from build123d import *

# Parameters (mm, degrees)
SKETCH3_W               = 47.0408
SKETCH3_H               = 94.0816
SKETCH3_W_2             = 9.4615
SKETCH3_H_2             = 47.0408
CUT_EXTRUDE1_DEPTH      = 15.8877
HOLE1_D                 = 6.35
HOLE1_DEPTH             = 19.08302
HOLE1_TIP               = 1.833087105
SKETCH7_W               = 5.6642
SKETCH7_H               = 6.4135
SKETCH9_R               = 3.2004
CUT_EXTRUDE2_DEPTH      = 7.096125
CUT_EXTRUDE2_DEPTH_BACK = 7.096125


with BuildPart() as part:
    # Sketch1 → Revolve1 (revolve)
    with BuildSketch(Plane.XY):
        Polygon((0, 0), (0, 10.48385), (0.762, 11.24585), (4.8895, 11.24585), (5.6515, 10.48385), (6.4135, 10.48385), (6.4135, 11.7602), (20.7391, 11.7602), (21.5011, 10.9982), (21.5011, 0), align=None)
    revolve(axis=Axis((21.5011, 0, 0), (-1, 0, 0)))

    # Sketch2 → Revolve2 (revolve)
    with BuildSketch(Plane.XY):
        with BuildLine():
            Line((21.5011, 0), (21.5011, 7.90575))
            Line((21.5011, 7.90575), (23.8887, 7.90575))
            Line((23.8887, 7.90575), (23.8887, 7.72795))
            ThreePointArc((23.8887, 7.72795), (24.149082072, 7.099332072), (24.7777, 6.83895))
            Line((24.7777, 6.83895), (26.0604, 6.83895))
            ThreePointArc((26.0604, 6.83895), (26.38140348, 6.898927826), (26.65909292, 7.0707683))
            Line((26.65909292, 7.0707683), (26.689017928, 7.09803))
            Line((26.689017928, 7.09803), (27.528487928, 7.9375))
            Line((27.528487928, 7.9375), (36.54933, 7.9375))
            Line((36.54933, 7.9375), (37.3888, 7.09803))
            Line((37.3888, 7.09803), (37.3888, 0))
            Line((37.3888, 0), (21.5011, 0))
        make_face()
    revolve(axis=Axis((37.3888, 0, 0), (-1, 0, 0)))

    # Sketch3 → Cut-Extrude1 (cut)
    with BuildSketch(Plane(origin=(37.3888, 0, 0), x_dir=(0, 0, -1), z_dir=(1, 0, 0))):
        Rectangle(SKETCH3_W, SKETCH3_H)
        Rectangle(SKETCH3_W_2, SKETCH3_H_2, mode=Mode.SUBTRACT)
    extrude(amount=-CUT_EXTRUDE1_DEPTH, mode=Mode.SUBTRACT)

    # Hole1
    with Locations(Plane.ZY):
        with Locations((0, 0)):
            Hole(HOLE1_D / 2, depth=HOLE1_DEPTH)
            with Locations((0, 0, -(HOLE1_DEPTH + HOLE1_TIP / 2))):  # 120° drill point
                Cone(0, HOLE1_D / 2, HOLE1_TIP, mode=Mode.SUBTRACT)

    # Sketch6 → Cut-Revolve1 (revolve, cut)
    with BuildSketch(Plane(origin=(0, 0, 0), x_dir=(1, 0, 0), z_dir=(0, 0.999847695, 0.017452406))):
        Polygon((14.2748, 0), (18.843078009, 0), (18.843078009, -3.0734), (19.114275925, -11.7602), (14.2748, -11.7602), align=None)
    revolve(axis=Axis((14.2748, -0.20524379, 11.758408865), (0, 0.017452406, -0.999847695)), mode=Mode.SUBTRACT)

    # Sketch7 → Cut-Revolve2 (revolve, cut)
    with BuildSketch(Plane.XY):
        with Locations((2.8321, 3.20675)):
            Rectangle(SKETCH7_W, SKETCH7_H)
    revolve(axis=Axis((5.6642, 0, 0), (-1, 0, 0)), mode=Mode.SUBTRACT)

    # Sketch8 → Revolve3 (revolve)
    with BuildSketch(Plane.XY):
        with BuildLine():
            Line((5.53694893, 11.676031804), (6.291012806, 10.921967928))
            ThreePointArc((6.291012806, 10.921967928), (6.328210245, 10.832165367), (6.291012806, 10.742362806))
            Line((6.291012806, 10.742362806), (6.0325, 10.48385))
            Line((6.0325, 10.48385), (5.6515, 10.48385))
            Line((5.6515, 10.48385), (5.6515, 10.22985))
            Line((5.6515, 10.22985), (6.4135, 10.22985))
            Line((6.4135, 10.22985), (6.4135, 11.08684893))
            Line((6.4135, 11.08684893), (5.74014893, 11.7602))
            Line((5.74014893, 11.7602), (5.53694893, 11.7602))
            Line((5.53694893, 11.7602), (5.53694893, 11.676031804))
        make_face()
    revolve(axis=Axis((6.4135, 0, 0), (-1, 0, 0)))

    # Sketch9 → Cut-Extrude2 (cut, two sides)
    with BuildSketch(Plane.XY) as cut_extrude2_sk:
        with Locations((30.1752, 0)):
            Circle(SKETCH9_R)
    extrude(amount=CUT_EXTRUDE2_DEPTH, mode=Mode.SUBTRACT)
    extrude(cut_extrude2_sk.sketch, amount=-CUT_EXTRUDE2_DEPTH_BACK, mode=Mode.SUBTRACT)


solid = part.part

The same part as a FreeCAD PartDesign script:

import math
import FreeCAD as App
import Part
import Sketcher

V = App.Vector
Q = App.Units.Quantity


def add_polygon(sketch, points):
    """Adds a closed chain of lines whose ends are joined by coincident constraints."""
    first, n = sketch.GeometryCount, len(points)
    for a, b in zip(points, points[1:] + points[:1]):
        sketch.addGeometry(Part.LineSegment(App.Vector(*a, 0), App.Vector(*b, 0)), False)
    for i in range(n):
        sketch.addConstraint(Sketcher.Constraint("Coincident", first + i, 2, first + (i + 1) % n, 1))

doc = App.newDocument("Part")
body = doc.addObject("PartDesign::Body", "Body")

sketch1 = doc.addObject("Sketcher::SketchObject", "Sketch")
body.addObject(sketch1)
sketch1.AttachmentSupport = (doc.XY_Plane, [""])
sketch1.MapMode = "FlatFace"
add_polygon(sketch1, [(0, 10.5), (0, 0), (21.5, 0), (21.5, 11), (20.7, 11.8), (6.4, 11.8), (6.4, 10.5), (5.7, 10.5), (4.9, 11.2), (0.8, 11.2)])
sketch1.addConstraint(Sketcher.Constraint("Vertical", 0))
sketch1.addConstraint(Sketcher.Constraint("Horizontal", 1))
sketch1.addConstraint(Sketcher.Constraint("Vertical", 2))
sketch1.addConstraint(Sketcher.Constraint("Horizontal", 4))
sketch1.addConstraint(Sketcher.Constraint("Vertical", 5))
sketch1.addConstraint(Sketcher.Constraint("Horizontal", 6))
sketch1.addConstraint(Sketcher.Constraint("Horizontal", 8))
sketch1.addConstraint(Sketcher.Constraint("Coincident", 0, 2, -1, 1))
sketch1.addConstraint(Sketcher.Constraint("Parallel", 3, 7))
sketch1.addConstraint(Sketcher.Constraint("Perpendicular", 7, 9))
sketch1.addConstraint(Sketcher.Constraint("Horizontal", 6, 2, 9, 2))
sketch1.addConstraint(Sketcher.Constraint("Equal", 3, 7))
sketch1.addConstraint(Sketcher.Constraint("Equal", 7, 9))
sketch1.addConstraint(Sketcher.Constraint("DistanceX", 6, 2, 6, 1, Q("0.03 in")))
sketch1.addConstraint(Sketcher.Constraint("DistanceX", 4, 2, 4, 1, Q("0.564 in")))
sketch1.addConstraint(Sketcher.Constraint("DistanceY", 2, 1, 2, 2, Q("0.433 in")))
sketch1.addConstraint(Sketcher.Constraint("DistanceX", -1, 1, 8, 2, Q("0.03 in")))
sketch1.addConstraint(Sketcher.Constraint("DistanceX", 1, 1, 1, 2, Q("0.8465 in")))
sketch1.addConstraint(Sketcher.Constraint("DistanceY", 0, 2, 0, 1, 10.48385))
revolution = doc.addObject("PartDesign::Revolution", "Revolution")
body.addObject(revolution)
revolution.Profile = sketch1
revolution.ReferenceAxis = (sketch1, ["H_Axis"])
revolution.Angle = 360

sketch2 = doc.addObject("Sketcher::SketchObject", "Sketch001")
body.addObject(sketch2)
sketch2.AttachmentSupport = (doc.XY_Plane, [""])
sketch2.MapMode = "FlatFace"
sketch2.addGeometry(Part.LineSegment(V(21.501, 7.906, 0), V(21.501, 0, 0)), False)
sketch2.addGeometry(Part.LineSegment(V(21.501, 0, 0), V(37.389, 0, 0)), False)
sketch2.addGeometry(Part.LineSegment(V(37.389, 0, 0), V(37.389, 7.098, 0)), False)
sketch2.addGeometry(Part.LineSegment(V(37.389, 7.098, 0), V(36.549, 7.938, 0)), False)
sketch2.addGeometry(Part.LineSegment(V(36.549, 7.938, 0), V(27.528, 7.938, 0)), False)
sketch2.addGeometry(Part.LineSegment(V(27.528, 7.938, 0), V(26.689, 7.098, 0)), False)
sketch2.addGeometry(Part.LineSegment(V(26.689, 7.098, 0), V(26.659, 7.071, 0)), False)
sketch2.addGeometry(Part.ArcOfCircle(Part.Circle(V(26.06, 7.728, 0), V(0, 0, 1), 0.889), math.radians(-90), math.radians(-48)), False)
sketch2.addGeometry(Part.LineSegment(V(26.06, 6.839, 0), V(24.778, 6.839, 0)), False)
sketch2.addGeometry(Part.ArcOfCircle(Part.Circle(V(24.778, 7.728, 0), V(0, 0, 1), 0.889), math.radians(-180), math.radians(-90)), False)
sketch2.addGeometry(Part.LineSegment(V(23.889, 7.728, 0), V(23.889, 7.906, 0)), False)
sketch2.addGeometry(Part.LineSegment(V(23.889, 7.906, 0), V(21.501, 7.906, 0)), False)
sketch2.addConstraint(Sketcher.Constraint("Coincident", 0, 2, 1, 1))
sketch2.addConstraint(Sketcher.Constraint("Coincident", 1, 2, 2, 1))
sketch2.addConstraint(Sketcher.Constraint("Coincident", 2, 2, 3, 1))
sketch2.addConstraint(Sketcher.Constraint("Coincident", 3, 2, 4, 1))
sketch2.addConstraint(Sketcher.Constraint("Coincident", 4, 2, 5, 1))
sketch2.addConstraint(Sketcher.Constraint("Coincident", 5, 2, 6, 1))
sketch2.addConstraint(Sketcher.Constraint("Tangent", 6, 2, 7, 2))
sketch2.addConstraint(Sketcher.Constraint("Tangent", 7, 1, 8, 1))
sketch2.addConstraint(Sketcher.Constraint("Tangent", 8, 2, 9, 2))
sketch2.addConstraint(Sketcher.Constraint("Tangent", 9, 1, 10, 1))
sketch2.addConstraint(Sketcher.Constraint("Coincident", 10, 2, 11, 1))
sketch2.addConstraint(Sketcher.Constraint("Coincident", 11, 2, 0, 1))
sketch2.addConstraint(Sketcher.Constraint("Vertical", 0))
sketch2.addConstraint(Sketcher.Constraint("Horizontal", 1))
sketch2.addConstraint(Sketcher.Constraint("Vertical", 2))
sketch2.addConstraint(Sketcher.Constraint("Horizontal", 4))
sketch2.addConstraint(Sketcher.Constraint("Horizontal", 8))
sketch2.addConstraint(Sketcher.Constraint("Vertical", 10))
sketch2.addConstraint(Sketcher.Constraint("Horizontal", 11))
sketch2.addConstraint(Sketcher.Constraint("Equal", 7, 9))
sketch2.addConstraint(Sketcher.Constraint("PointOnObject", 0, 2, -1))
sketch2.addConstraint(Sketcher.Constraint("Perpendicular", 3, 5))
sketch2.addConstraint(Sketcher.Constraint("Horizontal", 2, 2, 5, 2))
sketch2.addConstraint(Sketcher.Constraint("Equal", 3, 5))
sketch2.addConstraint(Sketcher.Constraint("Radius", 7, Q("0.035 in")))
sketch2.addConstraint(Sketcher.Constraint("DistanceX", 11, 2, 11, 1, Q("0.094 in")))
sketch2.addConstraint(Sketcher.Constraint("DistanceY", 10, 1, 10, 2, Q("0.007 in")))
sketch2.addConstraint(Sketcher.Constraint("DistanceX", 1, 1, 1, 2, Q("0.6255 in")))
sketch2.addConstraint(Sketcher.Constraint("DistanceX", 8, 2, 8, 1, Q("0.0505 in")))
sketch2.addConstraint(Sketcher.Constraint("DistanceX", -1, 1, 7, 3, Q("1.026 in")))
sketch2.addConstraint(Sketcher.Constraint("DistanceY", -1, 1, 3, 2, Q("0.3125 in")))
sketch2.addConstraint(Sketcher.Constraint("DistanceY", 2, 2, 7, 3, Q("0.0248 in")))
sketch2.addConstraint(Sketcher.Constraint("DistanceY", 0, 2, 0, 1, 7.90575))
sketch2.addConstraint(Sketcher.Constraint("Distance", 6, 0.040481))
revolution2 = doc.addObject("PartDesign::Revolution", "Revolution001")
body.addObject(revolution2)
revolution2.Profile = sketch2
revolution2.ReferenceAxis = (sketch2, ["H_Axis"])
revolution2.Angle = 360

sketch3 = doc.addObject("Sketcher::SketchObject", "Sketch002")
body.addObject(sketch3)
sketch3.AttachmentSupport = (doc.YZ_Plane, [""])
sketch3.MapMode = "FlatFace"
sketch3.AttachmentOffset = App.Placement(V(0, 0, 1.472 * 25.4), App.Rotation())
add_polygon(sketch3, [(47, 24), (-47, 24), (-47, -24), (47, -24)])
add_polygon(sketch3, [(-24, -5), (-24, 5), (24, 5), (24, -5)])
sketch3.addConstraint(Sketcher.Constraint("Horizontal", 0))
sketch3.addConstraint(Sketcher.Constraint("Vertical", 1))
sketch3.addConstraint(Sketcher.Constraint("Horizontal", 2))
sketch3.addConstraint(Sketcher.Constraint("Vertical", 3))
sketch3.addConstraint(Sketcher.Constraint("Vertical", 4))
sketch3.addConstraint(Sketcher.Constraint("Horizontal", 5))
sketch3.addConstraint(Sketcher.Constraint("Vertical", 6))
sketch3.addConstraint(Sketcher.Constraint("Horizontal", 7))
sketch3.addConstraint(Sketcher.Constraint("Symmetric", 0, 2, 2, 2, -1, 1))
sketch3.addConstraint(Sketcher.Constraint("Symmetric", 4, 2, 6, 2, -1, 1))
sketch3.addConstraint(Sketcher.Constraint("Equal", 7, 1))
sketch3.addConstraint(Sketcher.Constraint("DistanceX", 0, 2, 0, 1, Q("3.704 in")))
sketch3.addConstraint(Sketcher.Constraint("DistanceX", 5, 1, 5, 2, Q("1.852 in")))
sketch3.addConstraint(Sketcher.Constraint("DistanceY", 4, 1, 4, 2, Q("0.3725 in")))
pocket1 = doc.addObject("PartDesign::Pocket", "Pocket")
body.addObject(pocket1)
pocket1.Profile = sketch3
pocket1.Length = Q("0.6255 in")

sketch4 = doc.addObject("Sketcher::SketchObject", "Sketch003")
body.addObject(sketch4)
sketch4.AttachmentSupport = (doc.YZ_Plane, [""])
sketch4.MapMode = "FlatFace"
sketch4.addGeometry(Part.Circle(V(0, 0, 0), V(0, 0, 1), 3.2), False)
sketch4.addConstraint(Sketcher.Constraint("Coincident", 0, 3, -1, 1))
sketch4.addConstraint(Sketcher.Constraint("Diameter", 0, Q("0.25 in")))
doc.recompute()
hole = doc.addObject("PartDesign::Hole", "Hole")
body.addObject(hole)
hole.Profile = sketch4
hole.ThreadType = "None"
hole.Diameter = Q("0.25 in")
hole.DepthType = "Dimension"
hole.Depth = Q("0.7513 in")
hole.DrillPoint = "Angled"
hole.DrillPointAngle = 120
hole.Reversed = True

sketch5 = doc.addObject("Sketcher::SketchObject", "Sketch004")
body.addObject(sketch5)
sketch5.Placement = App.Placement(V(0, 0, 0), App.Rotation(V(1, 0, 0), V(0, 0.017452406, -0.999847695), V(0, 0.999847695, 0.017452406), "ZXY"))
add_polygon(sketch5, [(18.8, 0), (14.3, 0), (14.3, -11.8), (19.1, -11.8), (18.8, -3.1)])
sketch5.addGeometry(Part.LineSegment(V(14.3, -11.8, 0), V(14.3, 0, 0)), True)
sketch5.addConstraint(Sketcher.Constraint("Horizontal", 0))
sketch5.addConstraint(Sketcher.Constraint("Vertical", 1))
sketch5.addConstraint(Sketcher.Constraint("Horizontal", 2))
sketch5.addConstraint(Sketcher.Constraint("Vertical", 4))
sketch5.addConstraint(Sketcher.Constraint("Vertical", 5))
sketch5.addConstraint(Sketcher.Constraint("Coincident", 5, 1, 1, 2))
sketch5.addConstraint(Sketcher.Constraint("PointOnObject", 0, 2, -1))
sketch5.addConstraint(Sketcher.Constraint("PointOnObject", 5, 2, -1))
sketch5.addConstraint(Sketcher.Constraint("DistanceY", 1, 2, 1, 1, Q("0.463 in")))
sketch5.addConstraint(Sketcher.Constraint("DistanceY", 4, 1, 4, 2, Q("0.121 in")))
sketch5.addConstraint(Sketcher.Constraint("DistanceX", -1, 1, 0, 2, Q("0.562 in")))
sketch5.addConstraint(Sketcher.Constraint("DistanceX", 0, 2, 0, 1, 4.568278))
sketch5.addConstraint(Sketcher.Constraint("DistanceX", 2, 1, 2, 2, 4.839476))
groove = doc.addObject("PartDesign::Groove", "Groove")
body.addObject(groove)
groove.Profile = sketch5
groove.ReferenceAxis = (sketch5, ["Axis0"])
groove.Angle = 360

sketch6 = doc.addObject("Sketcher::SketchObject", "Sketch005")
body.addObject(sketch6)
sketch6.AttachmentSupport = (doc.XY_Plane, [""])
sketch6.MapMode = "FlatFace"
add_polygon(sketch6, [(0, 6), (0, 0), (6, 0), (6, 6)])
sketch6.addConstraint(Sketcher.Constraint("Vertical", 0))
sketch6.addConstraint(Sketcher.Constraint("Horizontal", 1))
sketch6.addConstraint(Sketcher.Constraint("Vertical", 2))
sketch6.addConstraint(Sketcher.Constraint("Horizontal", 3))
sketch6.addConstraint(Sketcher.Constraint("Coincident", 0, 2, -1, 1))
sketch6.addConstraint(Sketcher.Constraint("DistanceX", 1, 1, 1, 2, Q("0.223 in")))
sketch6.addConstraint(Sketcher.Constraint("DistanceY", 0, 2, 0, 1, Q("0.2525 in")))
groove2 = doc.addObject("PartDesign::Groove", "Groove001")
body.addObject(groove2)
groove2.Profile = sketch6
groove2.ReferenceAxis = (sketch6, ["H_Axis"])
groove2.Angle = 360

sketch7 = doc.addObject("Sketcher::SketchObject", "Sketch006")
body.addObject(sketch7)
sketch7.AttachmentSupport = (doc.XY_Plane, [""])
sketch7.MapMode = "FlatFace"
sketch7.addGeometry(Part.LineSegment(V(5.54, 11.68, 0), V(6.29, 10.92, 0)), False)
sketch7.addGeometry(Part.ArcOfCircle(Part.Circle(V(6.2, 10.83, 0), V(0, 0, 1), 0.13), math.radians(-45), math.radians(45)), False)
sketch7.addGeometry(Part.LineSegment(V(6.29, 10.74, 0), V(6.03, 10.48, 0)), False)
sketch7.addGeometry(Part.LineSegment(V(6.03, 10.48, 0), V(5.65, 10.48, 0)), False)
sketch7.addGeometry(Part.LineSegment(V(5.65, 10.48, 0), V(5.65, 10.23, 0)), False)
sketch7.addGeometry(Part.LineSegment(V(5.65, 10.23, 0), V(6.41, 10.23, 0)), False)
sketch7.addGeometry(Part.LineSegment(V(6.41, 10.23, 0), V(6.41, 11.09, 0)), False)
sketch7.addGeometry(Part.LineSegment(V(6.41, 11.09, 0), V(5.74, 11.76, 0)), False)
sketch7.addGeometry(Part.LineSegment(V(5.74, 11.76, 0), V(5.54, 11.76, 0)), False)
sketch7.addGeometry(Part.LineSegment(V(5.54, 11.76, 0), V(5.54, 11.68, 0)), False)
sketch7.addConstraint(Sketcher.Constraint("Tangent", 0, 2, 1, 2))
sketch7.addConstraint(Sketcher.Constraint("Tangent", 1, 1, 2, 1))
sketch7.addConstraint(Sketcher.Constraint("Coincident", 2, 2, 3, 1))
sketch7.addConstraint(Sketcher.Constraint("Coincident", 3, 2, 4, 1))
sketch7.addConstraint(Sketcher.Constraint("Coincident", 4, 2, 5, 1))
sketch7.addConstraint(Sketcher.Constraint("Coincident", 5, 2, 6, 1))
sketch7.addConstraint(Sketcher.Constraint("Coincident", 6, 2, 7, 1))
sketch7.addConstraint(Sketcher.Constraint("Coincident", 7, 2, 8, 1))
sketch7.addConstraint(Sketcher.Constraint("Coincident", 8, 2, 9, 1))
sketch7.addConstraint(Sketcher.Constraint("Coincident", 9, 2, 0, 1))
sketch7.addConstraint(Sketcher.Constraint("Horizontal", 3))
sketch7.addConstraint(Sketcher.Constraint("Vertical", 4))
sketch7.addConstraint(Sketcher.Constraint("Horizontal", 5))
sketch7.addConstraint(Sketcher.Constraint("Vertical", 6))
sketch7.addConstraint(Sketcher.Constraint("Horizontal", 8))
sketch7.addConstraint(Sketcher.Constraint("Vertical", 9))
sketch7.addConstraint(Sketcher.Constraint("Perpendicular", 0, 2))
sketch7.addConstraint(Sketcher.Constraint("Perpendicular", 2, 7))
sketch7.addConstraint(Sketcher.Constraint("Vertical", 0, 2, 1, 1))
sketch7.addConstraint(Sketcher.Constraint("Radius", 1, Q("0.005 in")))
sketch7.addConstraint(Sketcher.Constraint("DistanceX", 5, 1, 5, 2, Q("0.03 in")))
sketch7.addConstraint(Sketcher.Constraint("DistanceY", 4, 2, 4, 1, Q("0.01 in")))
sketch7.addConstraint(Sketcher.Constraint("DistanceX", 3, 2, 3, 1, Q("0.015 in")))
sketch7.addConstraint(Sketcher.Constraint("DistanceX", 8, 2, 8, 1, Q("0.008 in")))
sketch7.addConstraint(Sketcher.Constraint("DistanceY", -1, 1, 7, 2, Q("0.463 in")))
sketch7.addConstraint(Sketcher.Constraint("DistanceY", 6, 1, 6, 2, 0.856999))
sketch7.addConstraint(Sketcher.Constraint("DistanceX", -1, 1, 2, 2, Q("0.2375 in")))
sketch7.addConstraint(Sketcher.Constraint("DistanceY", 9, 2, 9, 1, 0.084168))
sketch7.addConstraint(Sketcher.Constraint("DistanceY", -1, 1, 2, 2, 10.48385))
revolution3 = doc.addObject("PartDesign::Revolution", "Revolution002")
body.addObject(revolution3)
revolution3.Profile = sketch7
revolution3.ReferenceAxis = (sketch7, ["H_Axis"])
revolution3.Angle = 360

sketch8 = doc.addObject("Sketcher::SketchObject", "Sketch007")
body.addObject(sketch8)
sketch8.AttachmentSupport = (doc.XY_Plane, [""])
sketch8.MapMode = "FlatFace"
sketch8.addGeometry(Part.Circle(V(30.2, 0, 0), V(0, 0, 1), 3.2), False)
sketch8.addConstraint(Sketcher.Constraint("PointOnObject", 0, 3, -1))
sketch8.addConstraint(Sketcher.Constraint("Diameter", 0, Q("0.252 in")))
sketch8.addConstraint(Sketcher.Constraint("DistanceX", -1, 1, 0, 3, Q("1.188 in")))
pocket2 = doc.addObject("PartDesign::Pocket", "Pocket001")
body.addObject(pocket2)
pocket2.Profile = sketch8
pocket2.Type = "ThroughAll"
pocket2.Midplane = True

doc.recompute()
